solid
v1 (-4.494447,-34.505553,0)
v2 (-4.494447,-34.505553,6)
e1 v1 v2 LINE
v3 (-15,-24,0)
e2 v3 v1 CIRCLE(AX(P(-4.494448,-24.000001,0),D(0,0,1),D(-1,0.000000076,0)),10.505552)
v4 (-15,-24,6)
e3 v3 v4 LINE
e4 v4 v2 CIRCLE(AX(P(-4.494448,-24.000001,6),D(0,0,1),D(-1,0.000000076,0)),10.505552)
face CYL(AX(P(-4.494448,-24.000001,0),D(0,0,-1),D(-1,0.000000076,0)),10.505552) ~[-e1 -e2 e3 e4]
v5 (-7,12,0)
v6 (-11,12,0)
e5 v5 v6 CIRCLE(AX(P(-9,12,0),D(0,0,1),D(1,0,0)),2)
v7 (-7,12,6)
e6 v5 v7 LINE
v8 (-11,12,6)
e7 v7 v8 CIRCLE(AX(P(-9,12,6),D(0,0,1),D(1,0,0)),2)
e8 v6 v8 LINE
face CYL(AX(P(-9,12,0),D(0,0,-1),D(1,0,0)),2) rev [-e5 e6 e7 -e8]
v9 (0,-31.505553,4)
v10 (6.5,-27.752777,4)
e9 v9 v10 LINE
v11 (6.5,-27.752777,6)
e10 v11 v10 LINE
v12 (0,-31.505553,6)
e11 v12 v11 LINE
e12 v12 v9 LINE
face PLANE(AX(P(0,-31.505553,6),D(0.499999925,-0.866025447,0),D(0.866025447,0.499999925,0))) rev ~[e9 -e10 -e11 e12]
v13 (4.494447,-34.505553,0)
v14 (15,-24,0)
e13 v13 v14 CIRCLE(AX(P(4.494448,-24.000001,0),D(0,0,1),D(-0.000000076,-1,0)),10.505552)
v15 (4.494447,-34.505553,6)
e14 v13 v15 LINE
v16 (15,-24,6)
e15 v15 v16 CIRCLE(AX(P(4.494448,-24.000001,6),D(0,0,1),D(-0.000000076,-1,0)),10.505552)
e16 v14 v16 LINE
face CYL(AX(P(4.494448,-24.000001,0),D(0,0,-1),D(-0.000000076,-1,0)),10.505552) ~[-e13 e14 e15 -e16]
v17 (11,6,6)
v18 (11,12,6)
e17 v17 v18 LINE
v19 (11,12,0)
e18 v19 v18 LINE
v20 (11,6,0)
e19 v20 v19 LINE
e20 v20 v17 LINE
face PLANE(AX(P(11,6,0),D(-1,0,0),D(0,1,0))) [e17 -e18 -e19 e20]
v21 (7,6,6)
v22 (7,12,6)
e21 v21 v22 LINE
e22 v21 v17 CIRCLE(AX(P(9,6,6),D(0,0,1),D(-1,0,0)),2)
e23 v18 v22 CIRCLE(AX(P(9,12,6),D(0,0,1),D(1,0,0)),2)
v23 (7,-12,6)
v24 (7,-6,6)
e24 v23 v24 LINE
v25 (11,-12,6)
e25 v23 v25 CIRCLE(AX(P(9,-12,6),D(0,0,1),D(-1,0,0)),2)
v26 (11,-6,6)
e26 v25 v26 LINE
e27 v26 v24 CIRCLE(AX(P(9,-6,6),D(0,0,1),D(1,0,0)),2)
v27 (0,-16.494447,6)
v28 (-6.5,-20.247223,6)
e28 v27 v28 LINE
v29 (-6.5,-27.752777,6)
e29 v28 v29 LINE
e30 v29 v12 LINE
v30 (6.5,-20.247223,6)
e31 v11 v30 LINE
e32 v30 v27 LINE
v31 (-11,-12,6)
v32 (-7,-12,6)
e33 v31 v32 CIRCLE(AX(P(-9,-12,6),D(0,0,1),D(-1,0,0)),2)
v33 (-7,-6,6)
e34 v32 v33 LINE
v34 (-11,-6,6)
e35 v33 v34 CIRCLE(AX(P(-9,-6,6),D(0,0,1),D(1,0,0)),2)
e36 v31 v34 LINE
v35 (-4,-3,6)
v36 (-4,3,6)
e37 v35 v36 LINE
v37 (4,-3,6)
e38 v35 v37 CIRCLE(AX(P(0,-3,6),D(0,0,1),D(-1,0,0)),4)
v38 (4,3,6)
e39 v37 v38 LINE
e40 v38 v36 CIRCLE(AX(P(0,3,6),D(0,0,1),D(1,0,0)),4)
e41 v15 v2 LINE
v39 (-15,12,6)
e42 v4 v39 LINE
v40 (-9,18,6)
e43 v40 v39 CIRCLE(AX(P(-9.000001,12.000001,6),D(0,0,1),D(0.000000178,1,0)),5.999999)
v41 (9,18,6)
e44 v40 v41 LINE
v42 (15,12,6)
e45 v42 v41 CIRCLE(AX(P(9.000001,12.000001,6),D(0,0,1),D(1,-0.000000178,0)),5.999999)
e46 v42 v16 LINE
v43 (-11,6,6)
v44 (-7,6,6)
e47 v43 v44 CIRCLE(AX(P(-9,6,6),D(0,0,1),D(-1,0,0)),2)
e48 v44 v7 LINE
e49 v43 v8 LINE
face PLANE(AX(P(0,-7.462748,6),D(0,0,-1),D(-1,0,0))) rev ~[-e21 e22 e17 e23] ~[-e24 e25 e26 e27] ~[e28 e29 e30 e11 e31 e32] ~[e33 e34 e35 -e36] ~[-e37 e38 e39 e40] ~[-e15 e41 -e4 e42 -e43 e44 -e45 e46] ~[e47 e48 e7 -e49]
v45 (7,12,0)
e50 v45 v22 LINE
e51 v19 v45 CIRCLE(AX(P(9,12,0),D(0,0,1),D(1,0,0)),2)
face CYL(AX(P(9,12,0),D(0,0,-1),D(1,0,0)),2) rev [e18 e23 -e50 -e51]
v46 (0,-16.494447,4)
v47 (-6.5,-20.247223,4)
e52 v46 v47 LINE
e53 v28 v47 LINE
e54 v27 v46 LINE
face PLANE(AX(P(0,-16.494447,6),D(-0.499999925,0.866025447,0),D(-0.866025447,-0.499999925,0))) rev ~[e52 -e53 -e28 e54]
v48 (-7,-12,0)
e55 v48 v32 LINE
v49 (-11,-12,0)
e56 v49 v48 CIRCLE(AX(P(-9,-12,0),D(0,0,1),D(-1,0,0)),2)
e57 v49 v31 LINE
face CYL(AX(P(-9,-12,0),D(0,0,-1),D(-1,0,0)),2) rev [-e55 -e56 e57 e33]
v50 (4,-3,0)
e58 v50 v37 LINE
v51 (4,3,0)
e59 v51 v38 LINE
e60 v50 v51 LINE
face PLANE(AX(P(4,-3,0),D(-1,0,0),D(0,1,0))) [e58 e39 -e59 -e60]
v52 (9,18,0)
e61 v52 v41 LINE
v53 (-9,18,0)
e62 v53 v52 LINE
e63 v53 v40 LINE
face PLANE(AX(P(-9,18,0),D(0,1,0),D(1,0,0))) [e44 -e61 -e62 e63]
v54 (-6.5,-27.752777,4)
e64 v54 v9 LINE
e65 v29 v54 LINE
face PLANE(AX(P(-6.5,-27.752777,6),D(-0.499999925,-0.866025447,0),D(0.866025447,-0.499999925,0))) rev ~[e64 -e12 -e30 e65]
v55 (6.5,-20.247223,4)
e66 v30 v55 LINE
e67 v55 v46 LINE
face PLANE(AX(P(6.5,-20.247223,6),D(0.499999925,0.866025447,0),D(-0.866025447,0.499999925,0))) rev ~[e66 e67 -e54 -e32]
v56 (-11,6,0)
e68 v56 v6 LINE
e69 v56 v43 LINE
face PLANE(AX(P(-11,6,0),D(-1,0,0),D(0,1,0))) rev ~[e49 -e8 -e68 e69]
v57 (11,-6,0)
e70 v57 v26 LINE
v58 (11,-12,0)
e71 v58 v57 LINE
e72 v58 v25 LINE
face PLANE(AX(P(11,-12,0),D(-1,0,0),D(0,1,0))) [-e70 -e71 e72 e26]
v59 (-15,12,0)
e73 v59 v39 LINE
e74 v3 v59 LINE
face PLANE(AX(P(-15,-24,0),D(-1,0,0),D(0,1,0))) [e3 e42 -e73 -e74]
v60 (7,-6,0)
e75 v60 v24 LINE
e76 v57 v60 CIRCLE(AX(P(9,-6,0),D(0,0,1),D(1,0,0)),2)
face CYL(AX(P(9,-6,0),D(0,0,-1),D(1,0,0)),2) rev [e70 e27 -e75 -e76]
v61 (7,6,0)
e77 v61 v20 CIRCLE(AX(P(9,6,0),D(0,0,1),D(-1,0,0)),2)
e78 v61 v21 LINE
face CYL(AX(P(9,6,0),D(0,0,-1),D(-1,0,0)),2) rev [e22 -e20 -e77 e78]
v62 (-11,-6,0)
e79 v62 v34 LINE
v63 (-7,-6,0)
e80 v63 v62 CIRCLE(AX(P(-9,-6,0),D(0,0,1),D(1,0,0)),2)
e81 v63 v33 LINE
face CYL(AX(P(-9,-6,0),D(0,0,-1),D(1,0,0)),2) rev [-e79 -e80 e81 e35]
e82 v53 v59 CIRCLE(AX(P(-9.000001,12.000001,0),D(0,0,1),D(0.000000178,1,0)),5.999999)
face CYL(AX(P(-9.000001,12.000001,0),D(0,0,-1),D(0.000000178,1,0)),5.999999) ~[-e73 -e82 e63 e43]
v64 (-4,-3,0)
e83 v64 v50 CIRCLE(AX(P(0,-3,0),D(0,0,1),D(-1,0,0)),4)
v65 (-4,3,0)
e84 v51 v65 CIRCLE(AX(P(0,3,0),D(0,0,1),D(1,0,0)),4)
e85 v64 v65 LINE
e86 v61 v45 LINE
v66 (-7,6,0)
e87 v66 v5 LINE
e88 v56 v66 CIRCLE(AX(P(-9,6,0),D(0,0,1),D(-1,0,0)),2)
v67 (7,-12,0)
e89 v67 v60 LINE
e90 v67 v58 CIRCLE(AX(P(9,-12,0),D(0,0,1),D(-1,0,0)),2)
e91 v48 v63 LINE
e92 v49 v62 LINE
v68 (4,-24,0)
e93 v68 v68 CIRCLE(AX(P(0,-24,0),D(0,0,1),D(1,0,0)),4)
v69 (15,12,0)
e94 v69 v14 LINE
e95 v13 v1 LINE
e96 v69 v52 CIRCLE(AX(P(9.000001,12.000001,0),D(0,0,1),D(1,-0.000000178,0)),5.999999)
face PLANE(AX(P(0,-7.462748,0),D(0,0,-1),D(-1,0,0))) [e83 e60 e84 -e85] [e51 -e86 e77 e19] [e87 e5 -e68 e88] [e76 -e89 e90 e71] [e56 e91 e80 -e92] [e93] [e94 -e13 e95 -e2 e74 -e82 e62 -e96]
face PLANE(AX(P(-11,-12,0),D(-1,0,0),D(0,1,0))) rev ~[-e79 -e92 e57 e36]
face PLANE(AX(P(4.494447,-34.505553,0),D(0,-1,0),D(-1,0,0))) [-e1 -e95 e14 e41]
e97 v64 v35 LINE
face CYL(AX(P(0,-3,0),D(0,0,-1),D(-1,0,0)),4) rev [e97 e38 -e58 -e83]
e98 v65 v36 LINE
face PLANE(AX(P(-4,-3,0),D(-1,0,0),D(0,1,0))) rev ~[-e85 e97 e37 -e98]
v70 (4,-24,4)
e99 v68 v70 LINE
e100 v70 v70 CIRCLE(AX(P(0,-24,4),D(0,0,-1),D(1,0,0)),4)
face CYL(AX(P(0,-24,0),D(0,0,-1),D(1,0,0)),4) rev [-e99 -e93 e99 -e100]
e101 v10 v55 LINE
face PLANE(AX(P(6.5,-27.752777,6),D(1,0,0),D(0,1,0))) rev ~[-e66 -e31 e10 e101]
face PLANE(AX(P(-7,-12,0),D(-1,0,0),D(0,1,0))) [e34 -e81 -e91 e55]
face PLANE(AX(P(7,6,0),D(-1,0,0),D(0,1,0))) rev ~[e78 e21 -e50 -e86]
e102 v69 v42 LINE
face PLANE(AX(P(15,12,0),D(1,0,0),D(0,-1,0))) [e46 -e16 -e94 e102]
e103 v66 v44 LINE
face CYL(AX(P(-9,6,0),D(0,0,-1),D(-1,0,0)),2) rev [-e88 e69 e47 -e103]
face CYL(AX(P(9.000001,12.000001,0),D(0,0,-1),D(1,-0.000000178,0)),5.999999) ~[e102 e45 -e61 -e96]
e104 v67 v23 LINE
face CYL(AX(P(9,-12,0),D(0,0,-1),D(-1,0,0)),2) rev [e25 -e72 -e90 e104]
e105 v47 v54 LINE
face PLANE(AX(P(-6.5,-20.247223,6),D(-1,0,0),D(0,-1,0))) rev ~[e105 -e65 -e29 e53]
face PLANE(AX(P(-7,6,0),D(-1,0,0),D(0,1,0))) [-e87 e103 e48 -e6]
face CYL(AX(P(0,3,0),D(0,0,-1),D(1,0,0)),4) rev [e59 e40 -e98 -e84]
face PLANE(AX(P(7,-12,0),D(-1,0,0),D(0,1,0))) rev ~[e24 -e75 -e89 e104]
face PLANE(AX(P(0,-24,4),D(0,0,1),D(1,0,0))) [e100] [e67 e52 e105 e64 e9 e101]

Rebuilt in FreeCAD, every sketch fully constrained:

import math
import FreeCAD as App
import Part
import Sketcher
Q = App.Units.Quantity

doc = App.newDocument("Part")
body = doc.addObject("PartDesign::Body", "Body")

sketch1 = body.newObject("Sketcher::SketchObject", "Sketch")
sketch1.AttachmentSupport = (doc.getObject("XY_Plane"), [""])
sketch1.MapMode = "FlatFace"
sketch1.addGeometry(Part.LineSegment(App.Vector(9, 18, 0), App.Vector(-9, 18, 0)), False)
sketch1.addGeometry(Part.ArcOfCircle(Part.Circle(App.Vector(-9.000001, 12.000001, 0), App.Vector(0, 0, 1), 5.999999), math.radians(89.99999), math.radians(180.00001)), False)
sketch1.addGeometry(Part.LineSegment(App.Vector(-15, 12, 0), App.Vector(-15, -24, 0)), False)
sketch1.addGeometry(Part.ArcOfCircle(Part.Circle(App.Vector(-4.494448, -24.000001, 0), App.Vector(0, 0, 1), 10.505552), math.radians(179.999996), math.radians(270.000004)), False)
sketch1.addGeometry(Part.LineSegment(App.Vector(-4.494447, -34.505553, 0), App.Vector(4.494447, -34.505553, 0)), False)
sketch1.addGeometry(Part.ArcOfCircle(Part.Circle(App.Vector(4.494448, -24.000001, 0), App.Vector(0, 0, 1), 10.505552), math.radians(-90.000004), math.radians(0.000004)), False)
sketch1.addGeometry(Part.LineSegment(App.Vector(15, -24, 0), App.Vector(15, 12, 0)), False)
sketch1.addGeometry(Part.ArcOfCircle(Part.Circle(App.Vector(9.000001, 12.000001, 0), App.Vector(0, 0, 1), 5.999999), math.radians(-0.00001), math.radians(90.00001)), False)
sketch1.addGeometry(Part.LineSegment(App.Vector(7, -12, 0), App.Vector(7, -6, 0)), False)
sketch1.addGeometry(Part.ArcOfCircle(Part.Circle(App.Vector(9, -6, 0), App.Vector(0, 0, 1), 2), math.radians(0), math.radians(180)), False)
sketch1.addGeometry(Part.LineSegment(App.Vector(11, -6, 0), App.Vector(11, -12, 0)), False)
sketch1.addGeometry(Part.ArcOfCircle(Part.Circle(App.Vector(9, -12, 0), App.Vector(0, 0, 1), 2), math.radians(180), math.radians(360)), False)
sketch1.addGeometry(Part.Circle(App.Vector(0, -24, 0), App.Vector(0, 0, 1), 4), False)
sketch1.addGeometry(Part.LineSegment(App.Vector(-11, -12, 0), App.Vector(-11, -6, 0)), False)
sketch1.addGeometry(Part.ArcOfCircle(Part.Circle(App.Vector(-9, -6, 0), App.Vector(0, 0, 1), 2), math.radians(0), math.radians(180)), False)
sketch1.addGeometry(Part.LineSegment(App.Vector(-7, -6, 0), App.Vector(-7, -12, 0)), False)
sketch1.addGeometry(Part.ArcOfCircle(Part.Circle(App.Vector(-9, -12, 0), App.Vector(0, 0, 1), 2), math.radians(180), math.radians(360)), False)
sketch1.addGeometry(Part.LineSegment(App.Vector(7, 6, 0), App.Vector(7, 12, 0)), False)
sketch1.addGeometry(Part.ArcOfCircle(Part.Circle(App.Vector(9, 12, 0), App.Vector(0, 0, 1), 2), math.radians(0), math.radians(180)), False)
sketch1.addGeometry(Part.LineSegment(App.Vector(11, 12, 0), App.Vector(11, 6, 0)), False)
sketch1.addGeometry(Part.ArcOfCircle(Part.Circle(App.Vector(9, 6, 0), App.Vector(0, 0, 1), 2), math.radians(180), math.radians(360)), False)
sketch1.addGeometry(Part.LineSegment(App.Vector(-4, -3, 0), App.Vector(-4, 3, 0)), False)
sketch1.addGeometry(Part.ArcOfCircle(Part.Circle(App.Vector(0, 3, 0), App.Vector(0, 0, 1), 4), math.radians(0), math.radians(180)), False)
sketch1.addGeometry(Part.LineSegment(App.Vector(4, 3, 0), App.Vector(4, -3, 0)), False)
sketch1.addGeometry(Part.ArcOfCircle(Part.Circle(App.Vector(0, -3, 0), App.Vector(0, 0, 1), 4), math.radians(180), math.radians(360)), False)
sketch1.addGeometry(Part.LineSegment(App.Vector(-11, 6, 0), App.Vector(-11, 12, 0)), False)
sketch1.addGeometry(Part.ArcOfCircle(Part.Circle(App.Vector(-9, 12, 0), App.Vector(0, 0, 1), 2), math.radians(0), math.radians(180)), False)
sketch1.addGeometry(Part.LineSegment(App.Vector(-7, 12, 0), App.Vector(-7, 6, 0)), False)
sketch1.addGeometry(Part.ArcOfCircle(Part.Circle(App.Vector(-9, 6, 0), App.Vector(0, 0, 1), 2), math.radians(180), math.radians(360)), False)
sketch1.addConstraint(Sketcher.Constraint("Tangent", 0, 2, 1, 1))
sketch1.addConstraint(Sketcher.Constraint("Tangent", 1, 2, 2, 1))
sketch1.addConstraint(Sketcher.Constraint("Tangent", 2, 2, 3, 1))
sketch1.addConstraint(Sketcher.Constraint("Tangent", 3, 2, 4, 1))
sketch1.addConstraint(Sketcher.Constraint("Tangent", 4, 2, 5, 1))
sketch1.addConstraint(Sketcher.Constraint("Tangent", 5, 2, 6, 1))
sketch1.addConstraint(Sketcher.Constraint("Tangent", 6, 2, 7, 1))
sketch1.addConstraint(Sketcher.Constraint("Tangent", 7, 2, 0, 1))
sketch1.addConstraint(Sketcher.Constraint("Tangent", 8, 2, 9, 2))
sketch1.addConstraint(Sketcher.Constraint("Tangent", 9, 1, 10, 1))
sketch1.addConstraint(Sketcher.Constraint("Tangent", 10, 2, 11, 2))
sketch1.addConstraint(Sketcher.Constraint("Tangent", 11, 1, 8, 1))
sketch1.addConstraint(Sketcher.Constraint("Tangent", 13, 2, 14, 2))
sketch1.addConstraint(Sketcher.Constraint("Tangent", 14, 1, 15, 1))
sketch1.addConstraint(Sketcher.Constraint("Tangent", 15, 2, 16, 2))
sketch1.addConstraint(Sketcher.Constraint("Tangent", 16, 1, 13, 1))
sketch1.addConstraint(Sketcher.Constraint("Tangent", 17, 2, 18, 2))
sketch1.addConstraint(Sketcher.Constraint("Tangent", 18, 1, 19, 1))
sketch1.addConstraint(Sketcher.Constraint("Tangent", 19, 2, 20, 2))
sketch1.addConstraint(Sketcher.Constraint("Tangent", 20, 1, 17, 1))
sketch1.addConstraint(Sketcher.Constraint("Tangent", 21, 2, 22, 2))
sketch1.addConstraint(Sketcher.Constraint("Tangent", 22, 1, 23, 1))
sketch1.addConstraint(Sketcher.Constraint("Tangent", 23, 2, 24, 2))
sketch1.addConstraint(Sketcher.Constraint("Tangent", 24, 1, 21, 1))
sketch1.addConstraint(Sketcher.Constraint("Tangent", 25, 2, 26, 2))
sketch1.addConstraint(Sketcher.Constraint("Tangent", 26, 1, 27, 1))
sketch1.addConstraint(Sketcher.Constraint("Tangent", 27, 2, 28, 2))
sketch1.addConstraint(Sketcher.Constraint("Tangent", 28, 1, 25, 1))
sketch1.addConstraint(Sketcher.Constraint("Horizontal", 0))
sketch1.addConstraint(Sketcher.Constraint("Vertical", 2))
sketch1.addConstraint(Sketcher.Constraint("Horizontal", 4))
sketch1.addConstraint(Sketcher.Constraint("Vertical", 6))
sketch1.addConstraint(Sketcher.Constraint("Vertical", 8))
sketch1.addConstraint(Sketcher.Constraint("Vertical", 10))
sketch1.addConstraint(Sketcher.Constraint("Vertical", 13))
sketch1.addConstraint(Sketcher.Constraint("Vertical", 15))
sketch1.addConstraint(Sketcher.Constraint("Vertical", 17))
sketch1.addConstraint(Sketcher.Constraint("Vertical", 19))
sketch1.addConstraint(Sketcher.Constraint("Vertical", 21))
sketch1.addConstraint(Sketcher.Constraint("Vertical", 23))
sketch1.addConstraint(Sketcher.Constraint("Vertical", 25))
sketch1.addConstraint(Sketcher.Constraint("Vertical", 27))
sketch1.addConstraint(Sketcher.Constraint("Coincident", 18, 3, 7, 3))
sketch1.addConstraint(Sketcher.Constraint("Coincident", 26, 3, 1, 3))
sketch1.addConstraint(Sketcher.Constraint("Equal", 3, 5))
sketch1.addConstraint(Sketcher.Constraint("Equal", 1, 7))
sketch1.addConstraint(Sketcher.Constraint("Equal", 11, 14))
sketch1.addConstraint(Sketcher.Constraint("Equal", 16, 18))
sketch1.addConstraint(Sketcher.Constraint("Equal", 12, 22))
sketch1.addConstraint(Sketcher.Constraint("Equal", 20, 26))
sketch1.addConstraint(Sketcher.Constraint("Symmetric", 1, 3, 11, 3, -1, 1))
sketch1.addConstraint(Sketcher.Constraint("Symmetric", 7, 3, 16, 3, -1, 1))
sketch1.addConstraint(Sketcher.Constraint("Symmetric", 22, 3, 24, 3, -1, 1))
sketch1.addConstraint(Sketcher.Constraint("Symmetric", 9, 3, 14, 3, -2))
sketch1.addConstraint(Sketcher.Constraint("PointOnObject", 12, 3, -2))
sketch1.addConstraint(Sketcher.Constraint("Horizontal", 5, 3, 12, 3))
sketch1.addConstraint(Sketcher.Constraint("Horizontal", 20, 3, 28, 3))
sketch1.addConstraint(Sketcher.Constraint("Equal", 15, 17))
sketch1.addConstraint(Sketcher.Constraint("Equal", 19, 21))
sketch1.addConstraint(Sketcher.Constraint("Diameter", 12, Q("8 mm")))
sketch1.addConstraint(Sketcher.Constraint("Radius", 1, Q("5.999999 mm")))
sketch1.addConstraint(Sketcher.Constraint("Radius", 9, Q("2 mm")))
sketch1.addConstraint(Sketcher.Constraint("DistanceX", 0, 2, 0, 1, Q("18 mm")))
sketch1.addConstraint(Sketcher.Constraint("DistanceY", 2, 2, 2, 1, Q("36 mm")))
sketch1.addConstraint(Sketcher.Constraint("DistanceY", 8, 1, 8, 2, Q("6 mm")))
sketch1.addConstraint(Sketcher.Constraint("DistanceY", -1, 1, 1, 3, Q("12.000001 mm")))
sketch1.addConstraint(Sketcher.Constraint("Radius", 3, Q("10.505552 mm")))
pad1 = body.newObject("PartDesign::Pad", "Pad")
pad1.Profile = sketch1
pad1.Length = 6

sketch2 = body.newObject("Sketcher::SketchObject", "Sketch001")
sketch2.AttachmentSupport = (doc.getObject("XY_Plane"), [""])
sketch2.MapMode = "FlatFace"
sketch2.AttachmentOffset = App.Placement(App.Vector(0, 0, 6), App.Rotation())
sketch2.addGeometry(Part.LineSegment(App.Vector(6.5, -20.247223, 0), App.Vector(0, -16.494447, 0)), False)
sketch2.addGeometry(Part.LineSegment(App.Vector(0, -16.494447, 0), App.Vector(-6.5, -20.247223, 0)), False)
sketch2.addGeometry(Part.LineSegment(App.Vector(-6.5, -20.247223, 0), App.Vector(-6.5, -27.752777, 0)), False)
sketch2.addGeometry(Part.LineSegment(App.Vector(-6.5, -27.752777, 0), App.Vector(0, -31.505553, 0)), False)
sketch2.addGeometry(Part.LineSegment(App.Vector(0, -31.505553, 0), App.Vector(6.5, -27.752777, 0)), False)
sketch2.addGeometry(Part.LineSegment(App.Vector(6.5, -27.752777, 0), App.Vector(6.5, -20.247223, 0)), False)
sketch2.addConstraint(Sketcher.Constraint("Coincident", 0, 2, 1, 1))
sketch2.addConstraint(Sketcher.Constraint("Coincident", 1, 2, 2, 1))
sketch2.addConstraint(Sketcher.Constraint("Coincident", 2, 2, 3, 1))
sketch2.addConstraint(Sketcher.Constraint("Coincident", 3, 2, 4, 1))
sketch2.addConstraint(Sketcher.Constraint("Coincident", 4, 2, 5, 1))
sketch2.addConstraint(Sketcher.Constraint("Coincident", 5, 2, 0, 1))
sketch2.addConstraint(Sketcher.Constraint("Vertical", 2))
sketch2.addConstraint(Sketcher.Constraint("Vertical", 5))
sketch2.addConstraint(Sketcher.Constraint("Symmetric", 2, 2, 4, 2, -2))
sketch2.addConstraint(Sketcher.Constraint("PointOnObject", 0, 2, -2))
sketch2.addConstraint(Sketcher.Constraint("PointOnObject", 3, 2, -2))
sketch2.addConstraint(Sketcher.Constraint("Parallel", 0, 3))
sketch2.addConstraint(Sketcher.Constraint("Parallel", 1, 4))
sketch2.addConstraint(Sketcher.Constraint("Angle", 0, Q("150.000005 deg")))
sketch2.addConstraint(Sketcher.Constraint("DistanceX", 2, 2, 4, 2, Q("13 mm")))
sketch2.addConstraint(Sketcher.Constraint("DistanceY", 2, 2, 2, 1, Q("7.505554 mm")))
sketch2.addConstraint(Sketcher.Constraint("DistanceY", 0, 2, -1, 1, Q("16.494447 mm")))
pocket1 = body.newObject("PartDesign::Pocket", "Pocket")
pocket1.Profile = sketch2
pocket1.Length = 2

doc.recompute()
